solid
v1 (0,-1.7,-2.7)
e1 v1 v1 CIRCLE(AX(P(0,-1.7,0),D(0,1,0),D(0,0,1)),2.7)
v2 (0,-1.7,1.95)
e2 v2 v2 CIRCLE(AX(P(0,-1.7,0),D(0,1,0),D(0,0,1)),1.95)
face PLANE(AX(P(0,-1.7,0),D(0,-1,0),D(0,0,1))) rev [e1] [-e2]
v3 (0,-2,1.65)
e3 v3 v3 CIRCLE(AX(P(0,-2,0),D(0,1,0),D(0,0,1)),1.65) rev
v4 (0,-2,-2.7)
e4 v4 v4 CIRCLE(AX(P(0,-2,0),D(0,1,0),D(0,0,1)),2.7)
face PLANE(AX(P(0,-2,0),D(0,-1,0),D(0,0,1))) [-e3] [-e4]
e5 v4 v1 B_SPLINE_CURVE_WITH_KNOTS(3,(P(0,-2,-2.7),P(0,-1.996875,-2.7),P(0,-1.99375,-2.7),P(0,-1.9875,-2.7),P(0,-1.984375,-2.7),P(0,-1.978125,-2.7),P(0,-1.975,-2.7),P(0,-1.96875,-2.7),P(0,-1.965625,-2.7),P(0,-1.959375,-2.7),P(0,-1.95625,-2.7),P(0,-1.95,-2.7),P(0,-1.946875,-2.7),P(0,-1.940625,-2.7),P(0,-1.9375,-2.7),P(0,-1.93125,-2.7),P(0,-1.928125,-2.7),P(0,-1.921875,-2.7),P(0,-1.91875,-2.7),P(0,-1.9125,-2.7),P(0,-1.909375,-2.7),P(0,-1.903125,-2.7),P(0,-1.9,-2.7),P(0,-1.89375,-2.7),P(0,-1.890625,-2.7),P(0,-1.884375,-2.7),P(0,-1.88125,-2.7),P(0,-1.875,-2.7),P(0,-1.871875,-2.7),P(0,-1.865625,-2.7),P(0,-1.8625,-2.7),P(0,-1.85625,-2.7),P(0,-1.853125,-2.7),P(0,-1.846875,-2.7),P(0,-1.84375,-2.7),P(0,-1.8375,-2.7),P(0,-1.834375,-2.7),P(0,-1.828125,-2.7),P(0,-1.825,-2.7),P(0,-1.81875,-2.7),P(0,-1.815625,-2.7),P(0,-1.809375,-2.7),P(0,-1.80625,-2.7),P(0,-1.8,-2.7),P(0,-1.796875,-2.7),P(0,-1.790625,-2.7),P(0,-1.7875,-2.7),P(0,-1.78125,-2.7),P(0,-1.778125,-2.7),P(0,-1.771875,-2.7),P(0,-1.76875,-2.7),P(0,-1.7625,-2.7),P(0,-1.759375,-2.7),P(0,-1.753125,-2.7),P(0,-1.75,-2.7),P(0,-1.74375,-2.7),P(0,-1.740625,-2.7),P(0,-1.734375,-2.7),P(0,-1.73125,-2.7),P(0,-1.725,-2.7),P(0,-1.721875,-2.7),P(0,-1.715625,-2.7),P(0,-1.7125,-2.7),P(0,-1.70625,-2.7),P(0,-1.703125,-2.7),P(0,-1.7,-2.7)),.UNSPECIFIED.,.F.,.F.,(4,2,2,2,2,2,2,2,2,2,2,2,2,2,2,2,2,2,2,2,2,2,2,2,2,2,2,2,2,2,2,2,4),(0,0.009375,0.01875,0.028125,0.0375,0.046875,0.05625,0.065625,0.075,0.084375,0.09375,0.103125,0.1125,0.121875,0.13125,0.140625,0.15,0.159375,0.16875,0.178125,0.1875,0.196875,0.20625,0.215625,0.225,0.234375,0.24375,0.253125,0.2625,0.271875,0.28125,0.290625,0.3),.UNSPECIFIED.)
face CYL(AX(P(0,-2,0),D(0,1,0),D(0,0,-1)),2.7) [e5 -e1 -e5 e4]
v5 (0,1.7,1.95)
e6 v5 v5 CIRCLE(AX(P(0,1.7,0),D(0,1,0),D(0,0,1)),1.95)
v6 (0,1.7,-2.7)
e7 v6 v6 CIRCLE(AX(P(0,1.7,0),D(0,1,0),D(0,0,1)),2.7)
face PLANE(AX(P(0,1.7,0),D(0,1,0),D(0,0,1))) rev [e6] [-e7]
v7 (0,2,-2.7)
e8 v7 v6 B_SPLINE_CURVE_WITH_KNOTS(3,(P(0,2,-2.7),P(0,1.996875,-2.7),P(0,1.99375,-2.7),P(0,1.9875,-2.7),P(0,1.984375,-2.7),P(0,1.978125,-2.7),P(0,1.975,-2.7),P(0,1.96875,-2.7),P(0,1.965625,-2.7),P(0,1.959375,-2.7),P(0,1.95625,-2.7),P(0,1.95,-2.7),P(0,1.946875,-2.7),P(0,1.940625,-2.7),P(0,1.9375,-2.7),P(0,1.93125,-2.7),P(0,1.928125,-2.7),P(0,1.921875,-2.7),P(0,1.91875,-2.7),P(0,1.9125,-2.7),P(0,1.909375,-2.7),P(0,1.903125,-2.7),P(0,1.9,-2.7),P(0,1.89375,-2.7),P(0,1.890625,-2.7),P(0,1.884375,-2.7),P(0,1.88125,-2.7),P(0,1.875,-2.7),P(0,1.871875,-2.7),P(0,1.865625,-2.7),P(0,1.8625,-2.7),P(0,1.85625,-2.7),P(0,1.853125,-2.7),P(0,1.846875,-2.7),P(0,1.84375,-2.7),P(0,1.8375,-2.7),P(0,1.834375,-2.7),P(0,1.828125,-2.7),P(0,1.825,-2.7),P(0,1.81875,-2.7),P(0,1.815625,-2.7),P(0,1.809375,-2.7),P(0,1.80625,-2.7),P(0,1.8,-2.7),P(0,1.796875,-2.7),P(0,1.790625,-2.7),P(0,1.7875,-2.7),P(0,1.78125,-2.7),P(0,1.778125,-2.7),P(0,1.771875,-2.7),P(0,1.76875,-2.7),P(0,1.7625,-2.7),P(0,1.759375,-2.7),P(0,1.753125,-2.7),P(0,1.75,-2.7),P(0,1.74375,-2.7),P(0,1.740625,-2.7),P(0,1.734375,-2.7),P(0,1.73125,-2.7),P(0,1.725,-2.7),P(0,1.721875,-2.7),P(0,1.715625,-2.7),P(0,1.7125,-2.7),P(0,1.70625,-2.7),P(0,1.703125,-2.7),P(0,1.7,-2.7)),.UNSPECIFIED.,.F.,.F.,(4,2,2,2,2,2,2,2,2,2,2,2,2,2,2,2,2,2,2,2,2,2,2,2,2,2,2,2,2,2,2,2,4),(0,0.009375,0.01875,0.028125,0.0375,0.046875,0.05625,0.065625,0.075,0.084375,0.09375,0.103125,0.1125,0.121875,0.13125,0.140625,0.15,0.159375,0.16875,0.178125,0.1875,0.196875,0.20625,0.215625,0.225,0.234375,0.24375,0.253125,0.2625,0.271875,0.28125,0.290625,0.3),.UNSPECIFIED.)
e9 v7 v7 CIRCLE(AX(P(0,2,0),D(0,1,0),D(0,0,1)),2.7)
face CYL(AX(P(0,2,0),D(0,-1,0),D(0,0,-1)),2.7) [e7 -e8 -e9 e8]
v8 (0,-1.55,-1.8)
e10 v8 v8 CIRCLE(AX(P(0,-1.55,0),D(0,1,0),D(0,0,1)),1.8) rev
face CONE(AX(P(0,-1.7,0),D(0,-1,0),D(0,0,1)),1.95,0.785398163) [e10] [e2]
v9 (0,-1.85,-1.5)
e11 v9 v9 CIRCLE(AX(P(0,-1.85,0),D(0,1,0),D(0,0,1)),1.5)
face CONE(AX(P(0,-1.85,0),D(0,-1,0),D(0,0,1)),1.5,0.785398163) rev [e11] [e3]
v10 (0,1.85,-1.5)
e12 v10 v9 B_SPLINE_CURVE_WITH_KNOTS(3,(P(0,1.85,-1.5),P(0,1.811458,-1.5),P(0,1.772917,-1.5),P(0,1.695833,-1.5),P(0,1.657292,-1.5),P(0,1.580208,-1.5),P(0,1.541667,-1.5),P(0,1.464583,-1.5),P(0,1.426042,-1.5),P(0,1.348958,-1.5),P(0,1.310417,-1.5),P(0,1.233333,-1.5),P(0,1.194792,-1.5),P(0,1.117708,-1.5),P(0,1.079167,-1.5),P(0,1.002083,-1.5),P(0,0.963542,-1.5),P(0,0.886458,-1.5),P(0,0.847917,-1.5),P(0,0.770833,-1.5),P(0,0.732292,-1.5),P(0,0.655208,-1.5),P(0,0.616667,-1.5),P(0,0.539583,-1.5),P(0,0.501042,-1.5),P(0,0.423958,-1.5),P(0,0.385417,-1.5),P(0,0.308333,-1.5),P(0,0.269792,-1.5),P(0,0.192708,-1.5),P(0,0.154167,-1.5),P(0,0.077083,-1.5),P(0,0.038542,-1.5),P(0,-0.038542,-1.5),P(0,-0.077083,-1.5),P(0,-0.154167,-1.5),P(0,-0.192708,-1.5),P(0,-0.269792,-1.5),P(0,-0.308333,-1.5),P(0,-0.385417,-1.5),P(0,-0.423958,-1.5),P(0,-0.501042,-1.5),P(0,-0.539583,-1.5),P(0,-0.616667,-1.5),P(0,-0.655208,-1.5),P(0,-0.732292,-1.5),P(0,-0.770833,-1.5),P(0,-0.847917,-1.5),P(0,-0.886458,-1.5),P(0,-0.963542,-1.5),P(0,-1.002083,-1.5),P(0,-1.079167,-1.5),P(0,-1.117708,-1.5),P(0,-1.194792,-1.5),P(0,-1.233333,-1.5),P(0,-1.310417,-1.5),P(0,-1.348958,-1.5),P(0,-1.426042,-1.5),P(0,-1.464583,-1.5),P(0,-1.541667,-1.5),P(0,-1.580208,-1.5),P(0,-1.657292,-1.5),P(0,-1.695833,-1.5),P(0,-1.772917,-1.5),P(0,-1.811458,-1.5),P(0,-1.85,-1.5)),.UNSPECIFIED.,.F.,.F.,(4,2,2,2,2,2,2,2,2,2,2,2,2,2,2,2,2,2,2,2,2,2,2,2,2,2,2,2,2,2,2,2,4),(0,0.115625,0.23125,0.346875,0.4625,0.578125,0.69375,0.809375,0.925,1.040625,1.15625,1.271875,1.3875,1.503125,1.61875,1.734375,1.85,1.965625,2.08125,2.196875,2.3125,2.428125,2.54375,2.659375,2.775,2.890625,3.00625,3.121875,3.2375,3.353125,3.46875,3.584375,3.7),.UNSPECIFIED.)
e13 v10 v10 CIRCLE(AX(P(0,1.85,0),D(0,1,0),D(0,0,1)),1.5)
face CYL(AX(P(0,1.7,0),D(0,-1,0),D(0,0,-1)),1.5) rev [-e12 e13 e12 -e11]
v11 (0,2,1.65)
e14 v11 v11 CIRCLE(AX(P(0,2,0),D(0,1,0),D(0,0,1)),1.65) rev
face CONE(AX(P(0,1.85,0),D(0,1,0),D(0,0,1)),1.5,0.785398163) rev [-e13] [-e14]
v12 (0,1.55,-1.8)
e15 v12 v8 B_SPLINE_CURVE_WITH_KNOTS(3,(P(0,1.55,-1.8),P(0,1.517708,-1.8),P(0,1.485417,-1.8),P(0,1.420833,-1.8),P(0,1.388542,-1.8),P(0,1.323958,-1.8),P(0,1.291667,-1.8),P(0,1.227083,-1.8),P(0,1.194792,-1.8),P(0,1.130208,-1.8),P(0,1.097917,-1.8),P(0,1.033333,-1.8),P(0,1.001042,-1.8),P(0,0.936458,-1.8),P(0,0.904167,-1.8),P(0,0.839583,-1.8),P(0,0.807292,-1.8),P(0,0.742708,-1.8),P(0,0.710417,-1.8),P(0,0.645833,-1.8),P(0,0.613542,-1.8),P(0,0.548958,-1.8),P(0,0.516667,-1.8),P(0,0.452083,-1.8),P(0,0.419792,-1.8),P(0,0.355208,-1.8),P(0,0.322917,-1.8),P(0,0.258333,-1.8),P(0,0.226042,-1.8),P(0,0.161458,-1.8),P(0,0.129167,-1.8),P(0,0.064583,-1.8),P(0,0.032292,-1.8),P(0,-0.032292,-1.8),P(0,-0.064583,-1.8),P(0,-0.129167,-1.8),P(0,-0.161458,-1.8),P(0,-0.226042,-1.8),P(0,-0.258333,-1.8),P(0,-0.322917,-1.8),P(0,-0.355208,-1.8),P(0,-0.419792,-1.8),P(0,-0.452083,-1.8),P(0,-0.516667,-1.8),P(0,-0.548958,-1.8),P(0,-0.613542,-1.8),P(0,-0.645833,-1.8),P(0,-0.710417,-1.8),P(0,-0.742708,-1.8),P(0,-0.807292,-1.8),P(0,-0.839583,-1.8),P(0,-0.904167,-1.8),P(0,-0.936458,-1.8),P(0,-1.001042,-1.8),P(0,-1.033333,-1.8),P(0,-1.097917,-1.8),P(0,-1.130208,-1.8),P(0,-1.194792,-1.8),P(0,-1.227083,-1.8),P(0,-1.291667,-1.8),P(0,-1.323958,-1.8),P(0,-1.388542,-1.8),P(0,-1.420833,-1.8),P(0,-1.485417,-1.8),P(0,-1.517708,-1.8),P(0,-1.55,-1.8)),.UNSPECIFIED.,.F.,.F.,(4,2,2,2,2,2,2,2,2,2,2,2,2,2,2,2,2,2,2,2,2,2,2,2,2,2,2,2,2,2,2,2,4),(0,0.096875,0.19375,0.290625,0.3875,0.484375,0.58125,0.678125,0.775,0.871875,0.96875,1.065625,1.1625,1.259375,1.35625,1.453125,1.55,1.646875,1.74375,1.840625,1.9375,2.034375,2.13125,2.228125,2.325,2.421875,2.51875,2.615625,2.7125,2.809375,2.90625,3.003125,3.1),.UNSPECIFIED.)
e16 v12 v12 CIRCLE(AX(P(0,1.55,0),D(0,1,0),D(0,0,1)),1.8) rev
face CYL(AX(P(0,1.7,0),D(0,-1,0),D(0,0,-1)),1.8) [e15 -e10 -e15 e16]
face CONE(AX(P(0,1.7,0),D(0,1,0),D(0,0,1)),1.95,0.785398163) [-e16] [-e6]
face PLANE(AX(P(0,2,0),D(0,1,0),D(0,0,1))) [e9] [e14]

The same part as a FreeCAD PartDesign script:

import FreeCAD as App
import Part
import Sketcher


def edges_at(feature, points):
    """Names of the edges that pass closest to the given points."""
    edges = feature.Shape.Edges
    near = lambda p: min(range(len(edges)), key=lambda i: edges[i].distToShape(Part.Vertex(*p))[0])
    return sorted({f"Edge{near(p) + 1}" for p in points})

doc = App.newDocument("Part")
body = doc.addObject("PartDesign::Body", "Body")

sketch1 = doc.addObject("Sketcher::SketchObject", "Sketch")
body.addObject(sketch1)
sketch1.AttachmentSupport = (doc.XZ_Plane, [""])
sketch1.MapMode = "FlatFace"
sketch1.addGeometry([
    Part.Circle(App.Vector(0, 0, 0), App.Vector(0, 0, 1), 1.8),
    Part.Circle(App.Vector(0, 0, 0), App.Vector(0, 0, 1), 1.5),
], False)
sketch1.addConstraint([
    Sketcher.Constraint("Coincident", 0, 3, -1, 1),
    Sketcher.Constraint("Coincident", 1, 3, -1, 1),
    Sketcher.Constraint("Diameter", 1, 3.0),
    Sketcher.Constraint("Diameter", 0, 3.6),
])
pad1 = doc.addObject("PartDesign::Pad", "Pad")
body.addObject(pad1)
pad1.Profile = sketch1
pad1.Length = 1.7
pad1.Reversed = True

sketch2 = doc.addObject("Sketcher::SketchObject", "Sketch001")
body.addObject(sketch2)
sketch2.AttachmentSupport = (doc.XZ_Plane, [""])
sketch2.MapMode = "FlatFace"
sketch2.AttachmentOffset = App.Placement(App.Vector(0, 0, -1.7), App.Rotation())
sketch2.addGeometry([
    Part.Circle(App.Vector(0, 0, 0), App.Vector(0, 0, 1), 2.7),
    Part.Circle(App.Vector(0, 0, 0), App.Vector(0, 0, 1), 1.5),
], False)
sketch2.addConstraint([
    Sketcher.Constraint("Coincident", 0, 3, -1, 1),
    Sketcher.Constraint("Coincident", 1, 3, -1, 1),
    Sketcher.Constraint("Diameter", 1, 3.0),
    Sketcher.Constraint("Diameter", 0, 5.4),
])
pad2 = doc.addObject("PartDesign::Pad", "Pad001")
body.addObject(pad2)
pad2.Profile = sketch2
pad2.Length = 0.3
pad2.Reversed = True
doc.recompute()

chamfer = doc.addObject("PartDesign::Chamfer", "Chamfer")
body.addObject(chamfer)
chamfer.Base = (pad2, edges_at(pad2, [(0, 1.7, -1.8)]))
chamfer.Size = 0.15
doc.recompute()

chamfer2 = doc.addObject("PartDesign::Chamfer", "Chamfer001")
body.addObject(chamfer2)
chamfer2.Base = (chamfer, edges_at(chamfer, [(0, 2, -1.5)]))
chamfer2.Size = 0.15
body2 = doc.addObject("PartDesign::Body", "Body001")
doc.recompute()

body2.BaseFeature = body
doc.recompute()

mirroring = doc.addObject("Part::Mirroring", "Mirroring")
mirroring.Source = body
mirroring.Base = App.Vector(0, 0, 0)
mirroring.Normal = App.Vector(0, 1, 0)
body3 = doc.addObject("PartDesign::Body", "Body002")
body3.BaseFeature = mirroring
boolean = doc.addObject("PartDesign::Boolean", "Boolean")
body2.addObject(boolean)
boolean.Type = "Fuse"
boolean.addObjects([body3])
doc.recompute()
mirroring.Visibility = False

doc.recompute()
